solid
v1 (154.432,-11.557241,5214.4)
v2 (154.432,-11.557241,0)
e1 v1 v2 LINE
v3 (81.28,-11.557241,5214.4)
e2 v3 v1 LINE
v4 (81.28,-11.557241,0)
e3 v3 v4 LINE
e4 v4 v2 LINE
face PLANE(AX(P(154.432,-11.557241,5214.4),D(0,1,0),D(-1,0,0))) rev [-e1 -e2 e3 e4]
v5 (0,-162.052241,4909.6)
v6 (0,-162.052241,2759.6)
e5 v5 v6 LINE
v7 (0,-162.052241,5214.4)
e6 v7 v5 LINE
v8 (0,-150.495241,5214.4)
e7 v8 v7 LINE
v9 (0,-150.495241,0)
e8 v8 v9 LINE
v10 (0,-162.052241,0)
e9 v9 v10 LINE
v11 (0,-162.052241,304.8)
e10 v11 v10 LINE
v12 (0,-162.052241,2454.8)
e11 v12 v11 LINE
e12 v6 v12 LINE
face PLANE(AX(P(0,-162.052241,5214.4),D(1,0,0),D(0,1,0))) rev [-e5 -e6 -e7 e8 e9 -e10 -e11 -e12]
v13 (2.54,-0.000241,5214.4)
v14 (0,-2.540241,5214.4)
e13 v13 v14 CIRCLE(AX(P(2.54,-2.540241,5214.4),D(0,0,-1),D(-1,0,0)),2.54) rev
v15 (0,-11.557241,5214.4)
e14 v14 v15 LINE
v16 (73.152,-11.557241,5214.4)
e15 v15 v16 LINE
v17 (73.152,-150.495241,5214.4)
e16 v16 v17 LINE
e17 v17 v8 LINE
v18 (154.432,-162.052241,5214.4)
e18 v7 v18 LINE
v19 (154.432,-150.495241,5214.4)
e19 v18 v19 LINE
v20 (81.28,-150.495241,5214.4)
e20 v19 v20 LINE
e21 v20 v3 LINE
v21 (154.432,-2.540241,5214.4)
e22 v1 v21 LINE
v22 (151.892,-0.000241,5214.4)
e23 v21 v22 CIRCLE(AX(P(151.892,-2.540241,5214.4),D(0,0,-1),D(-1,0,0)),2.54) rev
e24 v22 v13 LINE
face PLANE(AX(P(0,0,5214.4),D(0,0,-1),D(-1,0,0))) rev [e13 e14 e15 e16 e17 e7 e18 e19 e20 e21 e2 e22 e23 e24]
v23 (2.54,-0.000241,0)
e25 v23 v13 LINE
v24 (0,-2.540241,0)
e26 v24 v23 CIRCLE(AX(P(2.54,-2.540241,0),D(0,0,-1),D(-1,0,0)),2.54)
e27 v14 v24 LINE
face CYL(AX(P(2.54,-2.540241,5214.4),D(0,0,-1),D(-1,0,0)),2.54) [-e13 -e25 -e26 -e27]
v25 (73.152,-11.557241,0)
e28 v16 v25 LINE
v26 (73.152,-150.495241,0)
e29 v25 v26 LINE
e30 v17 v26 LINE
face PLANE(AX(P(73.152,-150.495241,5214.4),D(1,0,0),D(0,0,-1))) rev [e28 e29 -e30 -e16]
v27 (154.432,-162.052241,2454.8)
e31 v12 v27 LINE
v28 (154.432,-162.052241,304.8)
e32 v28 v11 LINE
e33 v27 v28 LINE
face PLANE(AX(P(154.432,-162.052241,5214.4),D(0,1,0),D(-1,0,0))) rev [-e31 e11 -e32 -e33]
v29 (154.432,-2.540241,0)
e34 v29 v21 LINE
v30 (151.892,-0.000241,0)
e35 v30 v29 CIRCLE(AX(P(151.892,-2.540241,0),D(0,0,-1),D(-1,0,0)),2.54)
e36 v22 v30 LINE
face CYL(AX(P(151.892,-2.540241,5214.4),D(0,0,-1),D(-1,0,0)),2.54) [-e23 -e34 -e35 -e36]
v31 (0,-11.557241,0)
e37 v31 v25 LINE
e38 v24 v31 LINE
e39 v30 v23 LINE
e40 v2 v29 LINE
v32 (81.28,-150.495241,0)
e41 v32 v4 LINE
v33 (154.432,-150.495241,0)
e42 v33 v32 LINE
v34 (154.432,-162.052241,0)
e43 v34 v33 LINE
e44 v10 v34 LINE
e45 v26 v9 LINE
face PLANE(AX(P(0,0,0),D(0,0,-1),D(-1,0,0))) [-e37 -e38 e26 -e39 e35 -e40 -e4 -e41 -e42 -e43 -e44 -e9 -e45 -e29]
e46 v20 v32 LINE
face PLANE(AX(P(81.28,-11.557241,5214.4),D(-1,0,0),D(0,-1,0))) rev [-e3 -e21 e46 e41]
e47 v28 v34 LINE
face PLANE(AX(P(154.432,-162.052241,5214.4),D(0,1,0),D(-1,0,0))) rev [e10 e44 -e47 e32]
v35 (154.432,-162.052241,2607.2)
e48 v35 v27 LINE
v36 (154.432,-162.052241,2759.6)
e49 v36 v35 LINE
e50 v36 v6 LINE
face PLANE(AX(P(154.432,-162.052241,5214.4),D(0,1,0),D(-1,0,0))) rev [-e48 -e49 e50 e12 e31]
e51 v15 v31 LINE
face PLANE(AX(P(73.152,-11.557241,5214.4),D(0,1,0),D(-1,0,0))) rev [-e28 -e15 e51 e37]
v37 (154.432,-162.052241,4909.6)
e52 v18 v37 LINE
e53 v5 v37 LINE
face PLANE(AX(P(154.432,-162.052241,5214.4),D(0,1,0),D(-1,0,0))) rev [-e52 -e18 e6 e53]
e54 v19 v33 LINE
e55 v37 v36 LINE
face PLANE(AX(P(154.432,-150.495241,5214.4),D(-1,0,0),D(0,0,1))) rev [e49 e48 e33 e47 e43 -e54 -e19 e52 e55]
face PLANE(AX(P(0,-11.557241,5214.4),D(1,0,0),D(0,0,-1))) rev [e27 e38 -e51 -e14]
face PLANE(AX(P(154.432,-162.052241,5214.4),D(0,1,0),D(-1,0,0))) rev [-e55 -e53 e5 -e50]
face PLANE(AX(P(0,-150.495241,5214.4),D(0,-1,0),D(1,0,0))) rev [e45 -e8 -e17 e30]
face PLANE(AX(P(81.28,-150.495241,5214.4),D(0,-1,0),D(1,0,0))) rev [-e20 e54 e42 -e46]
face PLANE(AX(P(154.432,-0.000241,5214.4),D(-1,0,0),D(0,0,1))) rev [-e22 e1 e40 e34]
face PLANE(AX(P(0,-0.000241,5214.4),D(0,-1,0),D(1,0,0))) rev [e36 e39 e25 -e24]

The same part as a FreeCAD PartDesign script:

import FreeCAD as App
import Part
import Sketcher

V = App.Vector
Q = App.Units.Quantity


def edges_at(feature, points):
    """Names of the edges that pass closest to the given points."""
    edges = feature.Shape.Edges
    near = lambda p: min(range(len(edges)), key=lambda i: edges[i].distToShape(Part.Vertex(*p))[0])
    return sorted({f"Edge{near(p) + 1}" for p in points})


def add_polygon(sketch, points):
    """Adds a closed chain of lines whose ends are joined by coincident constraints."""
    first, n = sketch.GeometryCount, len(points)
    for a, b in zip(points, points[1:] + points[:1]):
        sketch.addGeometry(Part.LineSegment(App.Vector(*a, 0), App.Vector(*b, 0)), False)
    for i in range(n):
        sketch.addConstraint(Sketcher.Constraint("Coincident", first + i, 2, first + (i + 1) % n, 1))

doc = App.newDocument("Part")
body = doc.addObject("PartDesign::Body", "Body")

# Sketch on XY plane
sketch1 = doc.addObject("Sketcher::SketchObject", "Sketch")
body.addObject(sketch1)
sketch1.AttachmentSupport = (doc.XY_Plane, [""])
sketch1.MapMode = "FlatFace"
add_polygon(sketch1, [(154.432, -0.000241), (0, -0.000241), (0, -11.557241), (73.152, -11.557241), (73.152, -150.495241), (0, -150.495241), (0, -162.052241), (154.432, -162.052241), (154.432, -150.495241), (81.28, -150.495241), (81.28, -11.557241), (154.432, -11.557241)])  # lines 0-11
sketch1.addConstraint([
    Sketcher.Constraint("Horizontal", 0),
    Sketcher.Constraint("Vertical", 1),
    Sketcher.Constraint("Horizontal", 2),
    Sketcher.Constraint("Vertical", 3),
    Sketcher.Constraint("Horizontal", 4),
    Sketcher.Constraint("Vertical", 5),
    Sketcher.Constraint("Horizontal", 6),
    Sketcher.Constraint("Vertical", 7),
    Sketcher.Constraint("Horizontal", 8),
    Sketcher.Constraint("Vertical", 9),
    Sketcher.Constraint("Horizontal", 10),
    Sketcher.Constraint("Vertical", 11),
    Sketcher.Constraint("PointOnObject", 0, 2, -2),
    Sketcher.Constraint("PointOnObject", 4, 2, -2),
    Sketcher.Constraint("Horizontal", 4, 2, 7, 2),
    Sketcher.Constraint("Horizontal", 2, 2, 9, 2),
    Sketcher.Constraint("Vertical", 7, 2, 10, 2),
    Sketcher.Constraint("Equal", 4, 8),
    Sketcher.Constraint("Equal", 1, 5),
    Sketcher.Constraint("DistanceX", 0, 2, 0, 1, Q("6.08 in")),
    Sketcher.Constraint("DistanceX", 2, 1, 2, 2, Q("2.88 in")),
    Sketcher.Constraint("DistanceY", 3, 2, 3, 1, Q("5.47 in")),
    Sketcher.Constraint("DistanceY", 1, 2, 1, 1, Q("0.455 in")),
    Sketcher.Constraint("DistanceY", 0, 2, -1, 1, 0.000241),
])
pad1 = doc.addObject("PartDesign::Pad", "Pad")
body.addObject(pad1)
pad1.Profile = sketch1
pad1.Length = 5214.4
doc.recompute()

fillet = doc.addObject("PartDesign::Fillet", "Fillet")
body.addObject(fillet)
fillet.Base = (pad1, edges_at(pad1, [(0, 0, 2607.2), (154.432, 0, 2607.2)]))
fillet.Radius = Q("0.1 in")

doc.recompute()
